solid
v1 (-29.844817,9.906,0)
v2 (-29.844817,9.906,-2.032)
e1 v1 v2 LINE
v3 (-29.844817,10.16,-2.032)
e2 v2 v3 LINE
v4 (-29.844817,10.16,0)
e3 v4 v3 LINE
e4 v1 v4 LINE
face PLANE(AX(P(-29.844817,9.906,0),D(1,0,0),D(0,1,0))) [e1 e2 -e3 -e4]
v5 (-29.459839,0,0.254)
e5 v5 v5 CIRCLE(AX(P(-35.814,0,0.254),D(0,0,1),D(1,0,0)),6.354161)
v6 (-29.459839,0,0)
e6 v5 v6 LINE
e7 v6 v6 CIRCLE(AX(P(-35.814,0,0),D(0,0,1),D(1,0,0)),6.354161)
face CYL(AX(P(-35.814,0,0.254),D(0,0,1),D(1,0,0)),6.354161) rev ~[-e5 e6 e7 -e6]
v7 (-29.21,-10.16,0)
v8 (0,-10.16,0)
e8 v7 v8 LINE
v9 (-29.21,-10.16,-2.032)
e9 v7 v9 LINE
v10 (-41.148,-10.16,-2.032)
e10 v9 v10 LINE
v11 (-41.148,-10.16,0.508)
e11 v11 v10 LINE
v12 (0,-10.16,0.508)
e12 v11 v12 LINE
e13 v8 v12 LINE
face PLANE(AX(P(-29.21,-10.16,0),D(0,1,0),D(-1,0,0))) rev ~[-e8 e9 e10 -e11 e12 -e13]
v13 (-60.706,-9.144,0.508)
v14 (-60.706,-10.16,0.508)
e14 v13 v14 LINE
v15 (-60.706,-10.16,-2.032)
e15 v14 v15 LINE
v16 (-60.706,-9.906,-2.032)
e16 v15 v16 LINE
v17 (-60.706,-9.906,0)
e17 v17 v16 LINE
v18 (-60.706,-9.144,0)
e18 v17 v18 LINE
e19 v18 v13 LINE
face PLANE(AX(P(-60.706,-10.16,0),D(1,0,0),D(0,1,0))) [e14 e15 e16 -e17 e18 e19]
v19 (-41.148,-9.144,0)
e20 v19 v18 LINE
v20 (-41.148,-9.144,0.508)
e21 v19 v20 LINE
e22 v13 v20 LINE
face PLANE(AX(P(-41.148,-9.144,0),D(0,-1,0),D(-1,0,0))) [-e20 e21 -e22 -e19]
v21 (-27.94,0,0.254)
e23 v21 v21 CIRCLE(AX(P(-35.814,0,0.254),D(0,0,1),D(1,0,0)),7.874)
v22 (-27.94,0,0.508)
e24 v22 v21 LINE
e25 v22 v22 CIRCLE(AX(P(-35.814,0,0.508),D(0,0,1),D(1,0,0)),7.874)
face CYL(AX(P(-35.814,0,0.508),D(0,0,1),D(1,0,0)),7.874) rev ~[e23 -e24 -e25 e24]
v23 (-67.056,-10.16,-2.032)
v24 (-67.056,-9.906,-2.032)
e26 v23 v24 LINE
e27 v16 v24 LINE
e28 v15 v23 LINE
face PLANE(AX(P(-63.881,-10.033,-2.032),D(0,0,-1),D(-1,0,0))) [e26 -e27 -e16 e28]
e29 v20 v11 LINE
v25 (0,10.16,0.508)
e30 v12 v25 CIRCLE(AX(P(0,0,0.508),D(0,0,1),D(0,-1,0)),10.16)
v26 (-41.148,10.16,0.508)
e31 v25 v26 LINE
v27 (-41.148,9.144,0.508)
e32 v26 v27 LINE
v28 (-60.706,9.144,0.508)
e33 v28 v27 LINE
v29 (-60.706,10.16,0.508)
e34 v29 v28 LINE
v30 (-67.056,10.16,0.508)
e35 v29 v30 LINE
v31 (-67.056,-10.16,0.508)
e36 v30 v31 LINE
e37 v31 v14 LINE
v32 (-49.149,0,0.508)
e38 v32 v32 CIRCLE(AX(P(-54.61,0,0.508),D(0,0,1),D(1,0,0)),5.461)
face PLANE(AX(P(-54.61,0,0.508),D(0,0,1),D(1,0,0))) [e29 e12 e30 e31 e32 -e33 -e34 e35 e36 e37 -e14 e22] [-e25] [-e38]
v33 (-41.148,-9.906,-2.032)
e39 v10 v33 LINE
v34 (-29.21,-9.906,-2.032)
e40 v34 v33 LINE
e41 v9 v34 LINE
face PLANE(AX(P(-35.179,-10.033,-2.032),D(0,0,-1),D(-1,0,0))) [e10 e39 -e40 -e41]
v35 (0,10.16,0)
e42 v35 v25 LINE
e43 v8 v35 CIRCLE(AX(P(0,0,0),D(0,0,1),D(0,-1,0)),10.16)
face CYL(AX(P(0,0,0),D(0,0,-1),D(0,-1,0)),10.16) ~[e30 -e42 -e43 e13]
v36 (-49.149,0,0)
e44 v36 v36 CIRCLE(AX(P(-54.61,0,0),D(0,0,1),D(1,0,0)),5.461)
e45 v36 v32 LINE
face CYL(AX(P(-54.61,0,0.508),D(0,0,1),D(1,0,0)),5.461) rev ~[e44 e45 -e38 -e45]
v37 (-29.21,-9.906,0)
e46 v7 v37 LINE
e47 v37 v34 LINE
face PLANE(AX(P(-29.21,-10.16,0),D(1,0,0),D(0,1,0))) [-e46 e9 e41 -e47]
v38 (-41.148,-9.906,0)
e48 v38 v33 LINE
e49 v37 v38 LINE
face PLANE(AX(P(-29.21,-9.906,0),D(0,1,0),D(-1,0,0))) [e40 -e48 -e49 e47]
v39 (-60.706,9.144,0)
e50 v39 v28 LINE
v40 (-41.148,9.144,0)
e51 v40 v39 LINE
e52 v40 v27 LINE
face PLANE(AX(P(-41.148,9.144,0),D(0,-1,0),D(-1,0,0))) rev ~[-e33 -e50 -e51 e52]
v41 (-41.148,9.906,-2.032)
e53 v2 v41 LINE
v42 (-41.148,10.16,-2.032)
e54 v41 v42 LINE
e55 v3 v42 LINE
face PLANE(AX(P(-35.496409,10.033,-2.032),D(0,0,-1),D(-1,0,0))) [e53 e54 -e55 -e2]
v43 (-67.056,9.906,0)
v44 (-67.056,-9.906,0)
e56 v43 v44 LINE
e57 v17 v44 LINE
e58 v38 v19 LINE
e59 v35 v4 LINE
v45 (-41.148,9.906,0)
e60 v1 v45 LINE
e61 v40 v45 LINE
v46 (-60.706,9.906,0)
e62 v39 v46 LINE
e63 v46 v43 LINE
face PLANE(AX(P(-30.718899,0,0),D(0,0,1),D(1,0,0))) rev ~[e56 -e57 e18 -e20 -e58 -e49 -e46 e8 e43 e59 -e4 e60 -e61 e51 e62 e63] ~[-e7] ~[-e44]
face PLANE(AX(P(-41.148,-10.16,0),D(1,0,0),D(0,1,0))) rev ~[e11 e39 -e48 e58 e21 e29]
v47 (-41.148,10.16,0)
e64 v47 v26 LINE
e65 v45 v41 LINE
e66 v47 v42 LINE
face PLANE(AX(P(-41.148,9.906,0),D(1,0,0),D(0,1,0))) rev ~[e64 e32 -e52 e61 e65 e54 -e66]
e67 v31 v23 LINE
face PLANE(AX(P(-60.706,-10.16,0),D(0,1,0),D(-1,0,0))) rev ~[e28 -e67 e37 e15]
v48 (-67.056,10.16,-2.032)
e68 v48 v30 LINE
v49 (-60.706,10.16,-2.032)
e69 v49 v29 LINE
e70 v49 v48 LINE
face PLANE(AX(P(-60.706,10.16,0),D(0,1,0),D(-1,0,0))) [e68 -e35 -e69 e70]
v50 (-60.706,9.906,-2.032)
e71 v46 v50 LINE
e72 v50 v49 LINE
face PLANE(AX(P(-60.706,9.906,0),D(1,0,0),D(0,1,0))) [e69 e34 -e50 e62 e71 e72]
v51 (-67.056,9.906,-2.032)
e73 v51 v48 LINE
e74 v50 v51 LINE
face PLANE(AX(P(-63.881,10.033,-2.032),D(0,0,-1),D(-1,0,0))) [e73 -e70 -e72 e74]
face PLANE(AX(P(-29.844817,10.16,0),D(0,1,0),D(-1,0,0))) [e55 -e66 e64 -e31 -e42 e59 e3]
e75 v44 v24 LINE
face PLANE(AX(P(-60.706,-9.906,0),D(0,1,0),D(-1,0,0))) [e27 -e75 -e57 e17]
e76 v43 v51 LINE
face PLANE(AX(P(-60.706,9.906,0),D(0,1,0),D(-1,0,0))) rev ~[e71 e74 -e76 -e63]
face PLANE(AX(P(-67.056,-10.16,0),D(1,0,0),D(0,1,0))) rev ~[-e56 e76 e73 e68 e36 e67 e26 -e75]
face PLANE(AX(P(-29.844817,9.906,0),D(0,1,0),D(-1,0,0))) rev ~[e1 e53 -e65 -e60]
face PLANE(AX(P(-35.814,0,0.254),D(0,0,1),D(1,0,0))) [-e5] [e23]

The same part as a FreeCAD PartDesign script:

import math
import FreeCAD as App
import Part
import Sketcher

V = App.Vector
Q = App.Units.Quantity

doc = App.newDocument("Part")
body = doc.addObject("PartDesign::Body", "Body")

# Sketch on XY plane
sketch1 = doc.addObject("Sketcher::SketchObject", "Sketch")
body.addObject(sketch1)
sketch1.AttachmentSupport = (doc.XY_Plane, [""])
sketch1.MapMode = "FlatFace"
sketch1.addGeometry([
    Part.ArcOfCircle(Part.Circle(V(0, 0, 0), V(0, 0, 1), 10), math.radians(-90), math.radians(90)),
    Part.LineSegment(V(0, 10, 0), V(-67, 10, 0)),
    Part.LineSegment(V(-67, 10, 0), V(-67, -10, 0)),
    Part.LineSegment(V(-67, -10, 0), V(0, -10, 0)),
], False)
sketch1.addConstraint([
    Sketcher.Constraint("Tangent", 0, 2, 1, 1),
    Sketcher.Constraint("Coincident", 1, 2, 2, 1),
    Sketcher.Constraint("Coincident", 2, 2, 3, 1),
    Sketcher.Constraint("Tangent", 3, 2, 0, 1),
    Sketcher.Constraint("Horizontal", 1),
    Sketcher.Constraint("Vertical", 2),
    Sketcher.Constraint("Horizontal", 3),
    Sketcher.Constraint("Coincident", 0, 3, -1, 1),
    Sketcher.Constraint("Radius", 0, Q("0.4 in")),
    Sketcher.Constraint("DistanceX", 1, 2, 1, 1, Q("2.64 in")),
])
pad1 = doc.addObject("PartDesign::Pad", "Pad")
body.addObject(pad1)
pad1.Profile = sketch1
pad1.Length = Q("0.02 in")

# Sketch on XY plane
sketch2 = doc.addObject("Sketcher::SketchObject", "Sketch001")
body.addObject(sketch2)
sketch2.AttachmentSupport = (doc.XY_Plane, [""])
sketch2.MapMode = "FlatFace"
sketch2.AttachmentOffset = App.Placement(V(0, 0, 0.02 * 25.4), App.Rotation())
sketch2.addGeometry([
    Part.Circle(V(-55, 0, 0), V(0, 0, 1), 8),
    Part.Circle(V(-36, 0, 0), V(0, 0, 1), 6),
], False)
sketch2.addConstraint([
    Sketcher.Constraint("PointOnObject", 0, 3, -1),
    Sketcher.Constraint("PointOnObject", 1, 3, -1),
    Sketcher.Constraint("Diameter", 1, Q("0.5 in")),
    Sketcher.Constraint("Diameter", 0, Q("0.62 in")),
    Sketcher.Constraint("DistanceX", 0, 3, -1, 1, Q("2.15 in")),
    Sketcher.Constraint("DistanceX", 1, 3, -1, 1, Q("1.41 in")),
])
pocket1 = doc.addObject("PartDesign::Pocket", "Pocket")
body.addObject(pocket1)
pocket1.Profile = sketch2
pocket1.Length = Q("0.01 in")

# Sketch on XY plane
sketch3 = doc.addObject("Sketcher::SketchObject", "Sketch002")
body.addObject(sketch3)
sketch3.AttachmentSupport = (doc.XY_Plane, [""])
sketch3.MapMode = "FlatFace"
sketch3.AttachmentOffset = App.Placement(V(0, 0, 0.01 * 25.4), App.Rotation())
sketch3.addGeometry(Part.Circle(V(-36, 0, 0), V(0, 0, 1), 6), False)
sketch3.addConstraint([
    Sketcher.Constraint("PointOnObject", 0, 3, -1),
    Sketcher.Constraint("DistanceX", 0, 3, -1, 1, Q("1.41 in")),
    Sketcher.Constraint("Diameter", 0, 12.708321),
])
pocket2 = doc.addObject("PartDesign::Pocket", "Pocket001")
body.addObject(pocket2)
pocket2.Profile = sketch3
pocket2.Type = "ThroughAll"

# Sketch on XY plane
sketch4 = doc.addObject("Sketcher::SketchObject", "Sketch003")
body.addObject(sketch4)
sketch4.AttachmentSupport = (doc.XY_Plane, [""])
sketch4.MapMode = "FlatFace"
sketch4.AttachmentOffset = App.Placement(V(0, 0, 0.01 * 25.4), App.Rotation())
sketch4.addGeometry(Part.Circle(V(-55, 0, 0), V(0, 0, 1), 5), False)
sketch4.addConstraint([
    Sketcher.Constraint("PointOnObject", 0, 3, -1),
    Sketcher.Constraint("Diameter", 0, Q("0.43 in")),
    Sketcher.Constraint("DistanceX", 0, 3, -1, 1, Q("2.15 in")),
])
pocket3 = doc.addObject("PartDesign::Pocket", "Pocket002")
body.addObject(pocket3)
pocket3.Profile = sketch4
pocket3.Type = "ThroughAll"

# Sketch on XY plane
sketch5 = doc.addObject("Sketcher::SketchObject", "Sketch004")
body.addObject(sketch5)
sketch5.AttachmentSupport = (doc.XY_Plane, [""])
sketch5.MapMode = "FlatFace"
sketch5.addGeometry([
    Part.LineSegment(V(-41.1, 10.2, 0), V(-41.1, 9.1, 0)),  # 0
    Part.LineSegment(V(-41.1, 9.1, 0), V(-60.7, 9.1, 0)),  # 1
    Part.LineSegment(V(-60.7, 9.1, 0), V(-60.7, 10.2, 0)),  # 2
    Part.LineSegment(V(-60.7, 10.2, 0), V(-41.1, 10.2, 0)),  # 3
    Part.LineSegment(V(-41.1, -9.1, 0), V(-41.1, -10.2, 0)),  # 4
    Part.LineSegment(V(-41.1, -10.2, 0), V(-60.7, -10.2, 0)),  # 5
    Part.LineSegment(V(-60.7, -10.2, 0), V(-60.7, -9.1, 0)),  # 6
    Part.LineSegment(V(-60.7, -9.1, 0), V(-41.1, -9.1, 0)),  # 7
], False)
sketch5.addConstraint([
    Sketcher.Constraint("Coincident", 0, 2, 1, 1),
    Sketcher.Constraint("Coincident", 1, 2, 2, 1),
    Sketcher.Constraint("Coincident", 2, 2, 3, 1),
    Sketcher.Constraint("Coincident", 3, 2, 0, 1),
    Sketcher.Constraint("Coincident", 4, 2, 5, 1),
    Sketcher.Constraint("Coincident", 5, 2, 6, 1),
    Sketcher.Constraint("Coincident", 6, 2, 7, 1),
    Sketcher.Constraint("Coincident", 7, 2, 4, 1),
    Sketcher.Constraint("Vertical", 0),
    Sketcher.Constraint("Horizontal", 1),
    Sketcher.Constraint("Vertical", 2),
    Sketcher.Constraint("Horizontal", 3),
    Sketcher.Constraint("Vertical", 4),
    Sketcher.Constraint("Horizontal", 5),
    Sketcher.Constraint("Vertical", 6),
    Sketcher.Constraint("Horizontal", 7),
    Sketcher.Constraint("Symmetric", 3, 2, 4, 2, -1),
    Sketcher.Constraint("Symmetric", 1, 2, 6, 2, -1),
    Sketcher.Constraint("DistanceX", 1, 2, 1, 1, Q("0.77 in")),
    Sketcher.Constraint("DistanceY", 0, 2, 0, 1, Q("0.04 in")),
    Sketcher.Constraint("DistanceY", -1, 1, 2, 2, Q("0.4 in")),
    Sketcher.Constraint("DistanceX", 0, 2, -1, 1, Q("1.62 in")),
])
pocket4 = doc.addObject("PartDesign::Pocket", "Pocket003")
body.addObject(pocket4)
pocket4.Profile = sketch5
pocket4.Type = "ThroughAll"
pocket4.Reversed = True

# Sketch on XY plane
sketch6 = doc.addObject("Sketcher::SketchObject", "Sketch005")
body.addObject(sketch6)
sketch6.AttachmentSupport = (doc.XY_Plane, [""])
sketch6.MapMode = "FlatFace"
sketch6.addGeometry([
    Part.LineSegment(V(-60.71, 10.16, 0), V(-60.71, 9.91, 0)),
    Part.LineSegment(V(-60.71, 9.91, 0), V(-67.06, 9.91, 0)),
    Part.LineSegment(V(-67.06, 9.91, 0), V(-67.06, 10.16, 0)),
    Part.LineSegment(V(-67.06, 10.16, 0), V(-60.71, 10.16, 0)),
], False)
sketch6.addConstraint([
    Sketcher.Constraint("Coincident", 0, 2, 1, 1),
    Sketcher.Constraint("Coincident", 1, 2, 2, 1),
    Sketcher.Constraint("Coincident", 2, 2, 3, 1),
    Sketcher.Constraint("Coincident", 3, 2, 0, 1),
    Sketcher.Constraint("Vertical", 0),
    Sketcher.Constraint("Horizontal", 1),
    Sketcher.Constraint("Vertical", 2),
    Sketcher.Constraint("Horizontal", 3),
    Sketcher.Constraint("DistanceX", 1, 2, 1, 1, Q("0.25 in")),
    Sketcher.Constraint("DistanceY", 0, 2, 0, 1, Q("0.01 in")),
    Sketcher.Constraint("DistanceY", -1, 1, 2, 2, Q("0.4 in")),
    Sketcher.Constraint("DistanceX", 0, 2, -1, 1, Q("2.39 in")),
])
pad2 = doc.addObject("PartDesign::Pad", "Pad001")
body.addObject(pad2)
pad2.Profile = sketch6
pad2.Length = Q("0.08 in")
pad2.Reversed = True

# Sketch on XY plane
sketch7 = doc.addObject("Sketcher::SketchObject", "Sketch006")
body.addObject(sketch7)
sketch7.AttachmentSupport = (doc.XY_Plane, [""])
sketch7.MapMode = "FlatFace"
sketch7.addGeometry([
    Part.LineSegment(V(-29.84, 10.16, 0), V(-29.84, 9.91, 0)),
    Part.LineSegment(V(-29.84, 9.91, 0), V(-41.15, 9.91, 0)),
    Part.LineSegment(V(-41.15, 9.91, 0), V(-41.15, 10.16, 0)),
    Part.LineSegment(V(-41.15, 10.16, 0), V(-29.84, 10.16, 0)),
], False)
sketch7.addConstraint([
    Sketcher.Constraint("Coincident", 0, 2, 1, 1),
    Sketcher.Constraint("Coincident", 1, 2, 2, 1),
    Sketcher.Constraint("Coincident", 2, 2, 3, 1),
    Sketcher.Constraint("Coincident", 3, 2, 0, 1),
    Sketcher.Constraint("Vertical", 0),
    Sketcher.Constraint("Horizontal", 1),
    Sketcher.Constraint("Vertical", 2),
    Sketcher.Constraint("Horizontal", 3),
    Sketcher.Constraint("DistanceY", 0, 2, 0, 1, Q("0.01 in")),
    Sketcher.Constraint("DistanceY", -1, 1, 2, 2, Q("0.4 in")),
    Sketcher.Constraint("DistanceX", 1, 2, -1, 1, Q("1.62 in")),
    Sketcher.Constraint("DistanceX", 1, 2, 1, 1, 11.303183),
])
pad3 = doc.addObject("PartDesign::Pad", "Pad002")
body.addObject(pad3)
pad3.Profile = sketch7
pad3.Length = Q("0.08 in")
pad3.Reversed = True

# Sketch on XY plane
sketch8 = doc.addObject("Sketcher::SketchObject", "Sketch007")
body.addObject(sketch8)
sketch8.AttachmentSupport = (doc.XY_Plane, [""])
sketch8.MapMode = "FlatFace"
sketch8.addGeometry([
    Part.LineSegment(V(-60.71, -9.91, 0), V(-60.71, -10.16, 0)),
    Part.LineSegment(V(-60.71, -10.16, 0), V(-67.06, -10.16, 0)),
    Part.LineSegment(V(-67.06, -10.16, 0), V(-67.06, -9.91, 0)),
    Part.LineSegment(V(-67.06, -9.91, 0), V(-60.71, -9.91, 0)),
], False)
sketch8.addConstraint([
    Sketcher.Constraint("Coincident", 0, 2, 1, 1),
    Sketcher.Constraint("Coincident", 1, 2, 2, 1),
    Sketcher.Constraint("Coincident", 2, 2, 3, 1),
    Sketcher.Constraint("Coincident", 3, 2, 0, 1),
    Sketcher.Constraint("Vertical", 0),
    Sketcher.Constraint("Horizontal", 1),
    Sketcher.Constraint("Vertical", 2),
    Sketcher.Constraint("Horizontal", 3),
    Sketcher.Constraint("DistanceX", 1, 2, 1, 1, Q("0.25 in")),
    Sketcher.Constraint("DistanceY", 0, 2, 0, 1, Q("0.01 in")),
    Sketcher.Constraint("DistanceY", 0, 2, -1, 1, Q("0.4 in")),
    Sketcher.Constraint("DistanceX", 0, 2, -1, 1, Q("2.39 in")),
])
pad4 = doc.addObject("PartDesign::Pad", "Pad003")
body.addObject(pad4)
pad4.Profile = sketch8
pad4.Length = Q("0.08 in")
pad4.Reversed = True

# Sketch on XY plane
sketch9 = doc.addObject("Sketcher::SketchObject", "Sketch008")
body.addObject(sketch9)
sketch9.AttachmentSupport = (doc.XY_Plane, [""])
sketch9.MapMode = "FlatFace"
sketch9.addGeometry([
    Part.LineSegment(V(-29.21, -9.91, 0), V(-29.21, -10.16, 0)),
    Part.LineSegment(V(-29.21, -10.16, 0), V(-41.15, -10.16, 0)),
    Part.LineSegment(V(-41.15, -10.16, 0), V(-41.15, -9.91, 0)),
    Part.LineSegment(V(-41.15, -9.91, 0), V(-29.21, -9.91, 0)),
], False)
sketch9.addConstraint([
    Sketcher.Constraint("Coincident", 0, 2, 1, 1),
    Sketcher.Constraint("Coincident", 1, 2, 2, 1),
    Sketcher.Constraint("Coincident", 2, 2, 3, 1),
    Sketcher.Constraint("Coincident", 3, 2, 0, 1),
    Sketcher.Constraint("Vertical", 0),
    Sketcher.Constraint("Horizontal", 1),
    Sketcher.Constraint("Vertical", 2),
    Sketcher.Constraint("Horizontal", 3),
    Sketcher.Constraint("DistanceX", 1, 2, 1, 1, Q("0.47 in")),
    Sketcher.Constraint("DistanceY", 0, 2, 0, 1, Q("0.01 in")),
    Sketcher.Constraint("DistanceY", 0, 2, -1, 1, Q("0.4 in")),
    Sketcher.Constraint("DistanceX", 0, 2, -1, 1, Q("1.15 in")),
])
pad5 = doc.addObject("PartDesign::Pad", "Pad004")
body.addObject(pad5)
pad5.Profile = sketch9
pad5.Length = Q("0.08 in")
pad5.Reversed = True

# Sketch on XY plane
sketch10 = doc.addObject("Sketcher::SketchObject", "Sketch009")
body.addObject(sketch10)
sketch10.AttachmentSupport = (doc.XY_Plane, [""])
sketch10.MapMode = "FlatFace"
sketch10.AttachmentOffset = App.Placement(V(0, 0, 0.02 * 25.4), App.Rotation())
sketch10.addGeometry(Part.Circle(V(-36, 0, 0), V(0, 0, 1), 8), False)
sketch10.addConstraint([
    Sketcher.Constraint("PointOnObject", 0, 3, -1),
    Sketcher.Constraint("Diameter", 0, Q("0.62 in")),
    Sketcher.Constraint("DistanceX", 0, 3, -1, 1, Q("1.41 in")),
])
pocket5 = doc.addObject("PartDesign::Pocket", "Pocket004")
body.addObject(pocket5)
pocket5.Profile = sketch10
pocket5.Length = Q("0.01 in")

# Sketch on XY plane
sketch11 = doc.addObject("Sketcher::SketchObject", "Sketch010")
body.addObject(sketch11)
sketch11.AttachmentSupport = (doc.XY_Plane, [""])
sketch11.MapMode = "FlatFace"
sketch11.AttachmentOffset = App.Placement(V(0, 0, 0.02 * 25.4), App.Rotation())
sketch11.addGeometry([
    Part.Circle(V(-55, 0, 0), V(0, 0, 1), 8),
    Part.Circle(V(-55, 0, 0), V(0, 0, 1), 5),
], False)
sketch11.addConstraint([
    Sketcher.Constraint("Coincident", 1, 3, 0, 3),
    Sketcher.Constraint("PointOnObject", 0, 3, -1),
    Sketcher.Constraint("Diameter", 0, Q("0.62 in")),
    Sketcher.Constraint("Diameter", 1, Q("0.43 in")),
    Sketcher.Constraint("DistanceX", 0, 3, -1, 1, Q("2.15 in")),
])
pad6 = doc.addObject("PartDesign::Pad", "Pad005")
body.addObject(pad6)
pad6.Profile = sketch11
pad6.Length = Q("0.01 in")
pad6.Reversed = True

doc.recompute()
